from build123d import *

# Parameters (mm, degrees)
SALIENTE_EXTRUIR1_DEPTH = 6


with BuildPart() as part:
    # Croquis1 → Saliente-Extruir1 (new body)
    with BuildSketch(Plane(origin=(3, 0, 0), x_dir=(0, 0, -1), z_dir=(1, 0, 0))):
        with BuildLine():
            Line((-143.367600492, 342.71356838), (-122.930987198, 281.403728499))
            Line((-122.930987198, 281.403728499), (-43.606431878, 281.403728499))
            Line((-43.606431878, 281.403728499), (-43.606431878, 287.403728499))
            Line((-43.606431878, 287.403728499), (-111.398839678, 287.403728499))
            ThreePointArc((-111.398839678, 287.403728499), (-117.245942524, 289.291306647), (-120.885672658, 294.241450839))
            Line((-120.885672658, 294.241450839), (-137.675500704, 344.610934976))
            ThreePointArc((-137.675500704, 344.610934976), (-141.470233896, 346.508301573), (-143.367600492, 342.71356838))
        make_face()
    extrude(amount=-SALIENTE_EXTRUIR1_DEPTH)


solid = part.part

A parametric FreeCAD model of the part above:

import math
import FreeCAD as App
import Part
import Sketcher
Q = App.Units.Quantity

doc = App.newDocument("Part")
params = doc.addObject("Spreadsheet::Sheet", "Params")
for row, (alias, value) in enumerate([
    ("sketch1_radius", "10 mm"),
    ("sketch1_radius2", "3 mm"),
    ("sketch1_width", "6 mm"),
    ("pad1_length", "6 mm"),
], start=1):
    params.set(f"A{row}", alias)
    params.set(f"B{row}", "=" + value)
    params.setAlias(f"B{row}", alias)

body = doc.addObject("PartDesign::Body", "Body")

# Sketch on YZ plane
sketch1 = body.newObject("Sketcher::SketchObject", "Sketch")
sketch1.AttachmentSupport = (doc.getObject("YZ_Plane"), [""])
sketch1.MapMode = "FlatFace"
sketch1.AttachmentOffset = App.Placement(App.Vector(0, 0, 3), App.Rotation())
sketch1.addGeometry([
    Part.LineSegment(App.Vector(342.713568, 143.3676, 0), App.Vector(281.403728, 122.930987, 0)),  # 0
    Part.LineSegment(App.Vector(281.403728, 122.930987, 0), App.Vector(281.403728, 43.606432, 0)),  # 1
    Part.LineSegment(App.Vector(281.403728, 43.606432, 0), App.Vector(287.403728, 43.606432, 0)),  # 2
    Part.LineSegment(App.Vector(287.403728, 43.606432, 0), App.Vector(287.403728, 111.39884, 0)),  # 3
    Part.ArcOfCircle(Part.Circle(App.Vector(297.403728, 111.39884, 0), App.Vector(0, 0, 1), 10), math.radians(108.434949), math.radians(180)),  # 4
    Part.LineSegment(App.Vector(294.241451, 120.885673, 0), App.Vector(344.610935, 137.675501, 0)),  # 5
    Part.ArcOfCircle(Part.Circle(App.Vector(343.662252, 140.521551, 0), App.Vector(0, 0, 1), 3), math.radians(-71.565051), math.radians(108.434949)),  # 6
], False)
sketch1.addConstraint([
    Sketcher.Constraint("Coincident", 0, 2, 1, 1),
    Sketcher.Constraint("Coincident", 1, 2, 2, 1),
    Sketcher.Constraint("Coincident", 2, 2, 3, 1),
    Sketcher.Constraint("Tangent", 3, 2, 4, 2),
    Sketcher.Constraint("Tangent", 4, 1, 5, 1),
    Sketcher.Constraint("Tangent", 5, 2, 6, 1),
    Sketcher.Constraint("Tangent", 6, 2, 0, 1),
    Sketcher.Constraint("Vertical", 1),
    Sketcher.Constraint("Horizontal", 2),
    Sketcher.Constraint("Vertical", 3),
    Sketcher.Constraint("Parallel", 0, 5),
    Sketcher.Constraint("Radius", 4, Q("10 mm")),
    Sketcher.Constraint("Radius", 6, Q("3 mm")),
    Sketcher.Constraint("DistanceX", 2, 1, 2, 2, Q("6 mm")),
    Sketcher.Constraint("Distance", 5, Q("53.094098 mm")),
    Sketcher.Constraint("DistanceY", -1, 1, 5, 2, Q("137.675501 mm")),
    Sketcher.Constraint("DistanceY", -1, 1, 6, 2, Q("143.3676 mm")),
    Sketcher.Constraint("DistanceY", 1, 2, 1, 1, Q("79.324555 mm")),
    Sketcher.Constraint("DistanceX", -1, 1, 4, 3, Q("297.403728 mm")),
])
sketch1.setExpression("Constraints[11]", "Params.sketch1_radius")
sketch1.setExpression("Constraints[12]", "Params.sketch1_radius2")
sketch1.setExpression("Constraints[13]", "Params.sketch1_width")
pad1 = body.newObject("PartDesign::Pad", "Pad")
pad1.Profile = sketch1
pad1.setExpression("Length", "Params.pad1_length")
pad1.Reversed = True

doc.recompute()
